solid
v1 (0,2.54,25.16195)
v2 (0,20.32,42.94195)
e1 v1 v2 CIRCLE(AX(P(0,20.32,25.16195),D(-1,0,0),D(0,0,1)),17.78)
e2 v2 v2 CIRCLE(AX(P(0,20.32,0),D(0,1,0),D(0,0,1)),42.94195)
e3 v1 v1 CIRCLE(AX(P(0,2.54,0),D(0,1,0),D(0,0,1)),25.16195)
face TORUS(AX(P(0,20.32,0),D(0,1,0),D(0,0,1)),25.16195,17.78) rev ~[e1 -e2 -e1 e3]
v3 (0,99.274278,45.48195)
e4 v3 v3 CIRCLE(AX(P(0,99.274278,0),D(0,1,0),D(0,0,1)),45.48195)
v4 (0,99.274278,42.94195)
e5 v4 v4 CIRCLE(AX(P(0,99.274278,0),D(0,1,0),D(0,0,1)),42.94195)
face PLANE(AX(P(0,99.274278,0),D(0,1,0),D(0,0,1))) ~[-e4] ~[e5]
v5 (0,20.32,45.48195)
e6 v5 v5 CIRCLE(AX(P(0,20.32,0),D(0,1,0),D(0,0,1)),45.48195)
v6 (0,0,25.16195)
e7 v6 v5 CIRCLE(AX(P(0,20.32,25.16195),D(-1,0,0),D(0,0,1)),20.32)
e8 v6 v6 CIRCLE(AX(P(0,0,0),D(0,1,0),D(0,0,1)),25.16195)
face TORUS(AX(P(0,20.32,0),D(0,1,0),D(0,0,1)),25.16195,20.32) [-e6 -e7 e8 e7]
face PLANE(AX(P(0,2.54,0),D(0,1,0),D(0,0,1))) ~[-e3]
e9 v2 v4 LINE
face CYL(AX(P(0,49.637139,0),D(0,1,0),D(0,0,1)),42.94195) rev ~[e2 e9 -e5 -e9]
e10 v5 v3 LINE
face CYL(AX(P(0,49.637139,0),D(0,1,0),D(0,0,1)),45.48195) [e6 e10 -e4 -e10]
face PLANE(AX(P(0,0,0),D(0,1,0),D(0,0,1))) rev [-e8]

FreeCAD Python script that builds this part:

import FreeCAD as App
import Part
import Sketcher
Q = App.Units.Quantity


def edges_at(feature, points):
    """Names of the edges that pass closest to the given points."""
    edges = feature.Shape.Edges
    near = lambda p: min(range(len(edges)), key=lambda i: edges[i].distToShape(Part.Vertex(*p))[0])
    return sorted({f"Edge{near(p) + 1}" for p in points})


def faces_at(feature, points):
    """Names of the faces that lie closest to the given points."""
    faces = feature.Shape.Faces
    near = lambda p: min(range(len(faces)), key=lambda i: faces[i].distToShape(Part.Vertex(*p))[0])
    return sorted({f"Face{near(p) + 1}" for p in points})


def add_polygon(sketch, points):
    """Adds a closed chain of lines whose ends are joined by coincident constraints."""
    first, n = sketch.GeometryCount, len(points)
    for a, b in zip(points, points[1:] + points[:1]):
        sketch.addGeometry(Part.LineSegment(App.Vector(*a, 0), App.Vector(*b, 0)), False)
    for i in range(n):
        sketch.addConstraint(Sketcher.Constraint("Coincident", first + i, 2, first + (i + 1) % n, 1))

doc = App.newDocument("Part")
body = doc.addObject("PartDesign::Body", "Body")

# Sketch on YZ plane
sketch1 = body.newObject("Sketcher::SketchObject", "Sketch")
sketch1.AttachmentSupport = (doc.getObject("YZ_Plane"), [""])
sketch1.MapMode = "FlatFace"
add_polygon(sketch1, [(0, 45), (0, 0), (99, 0), (99, 45)])  # lines 0-3
sketch1.addConstraint(Sketcher.Constraint("Vertical", 0))
sketch1.addConstraint(Sketcher.Constraint("Horizontal", 1))
sketch1.addConstraint(Sketcher.Constraint("Vertical", 2))
sketch1.addConstraint(Sketcher.Constraint("Horizontal", 3))
sketch1.addConstraint(Sketcher.Constraint("Coincident", 0, 2, -1, 1))
sketch1.addConstraint(Sketcher.Constraint("DistanceY", 0, 2, 0, 1, Q("45.48195 mm")))
sketch1.addConstraint(Sketcher.Constraint("DistanceX", 1, 1, 1, 2, Q("99.274278 mm")))
revolution = body.newObject("PartDesign::Revolution", "Revolution")
revolution.Profile = sketch1
revolution.ReferenceAxis = (sketch1, ["H_Axis"])
revolution.Angle = 360
doc.recompute()

fillet = body.newObject("PartDesign::Fillet", "Fillet")
fillet.Base = (revolution, edges_at(revolution, [(0, 0, -45.482)]))
fillet.Radius = Q("0.8 in")
doc.recompute()

thickness = body.newObject("PartDesign::Thickness", "Thickness")
thickness.Base = (fillet, faces_at(fillet, [(0, 99.274, 0)]))
thickness.Value = Q("0.1 in")
thickness.Reversed = True
thickness.Join = "Arc"

doc.recompute()
